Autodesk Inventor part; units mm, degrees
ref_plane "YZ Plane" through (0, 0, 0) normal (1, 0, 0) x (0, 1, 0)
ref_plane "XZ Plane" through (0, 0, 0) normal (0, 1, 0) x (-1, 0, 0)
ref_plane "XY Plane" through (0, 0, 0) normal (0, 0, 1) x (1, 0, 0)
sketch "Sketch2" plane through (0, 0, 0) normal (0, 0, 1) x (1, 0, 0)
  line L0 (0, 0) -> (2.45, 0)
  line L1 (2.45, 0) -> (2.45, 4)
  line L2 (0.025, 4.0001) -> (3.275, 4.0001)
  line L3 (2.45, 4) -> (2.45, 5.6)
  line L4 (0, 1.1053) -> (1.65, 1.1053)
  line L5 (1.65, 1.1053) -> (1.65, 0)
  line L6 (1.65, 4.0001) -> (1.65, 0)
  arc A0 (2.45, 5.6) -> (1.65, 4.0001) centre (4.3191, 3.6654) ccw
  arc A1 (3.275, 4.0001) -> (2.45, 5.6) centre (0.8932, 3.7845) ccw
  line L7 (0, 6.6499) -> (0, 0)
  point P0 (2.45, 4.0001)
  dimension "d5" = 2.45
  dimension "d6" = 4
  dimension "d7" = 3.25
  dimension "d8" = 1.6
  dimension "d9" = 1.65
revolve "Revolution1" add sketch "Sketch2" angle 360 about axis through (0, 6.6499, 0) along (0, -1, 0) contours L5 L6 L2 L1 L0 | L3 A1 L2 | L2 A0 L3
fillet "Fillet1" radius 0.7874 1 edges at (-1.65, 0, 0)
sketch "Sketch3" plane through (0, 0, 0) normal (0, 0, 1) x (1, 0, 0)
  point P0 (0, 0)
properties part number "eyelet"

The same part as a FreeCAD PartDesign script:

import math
import FreeCAD as App
import Part
import Sketcher
from FreeCAD import Vector


def edges_at(feature, points):
    """Names of the edges that pass closest to the given points."""
    edges = feature.Shape.Edges
    near = lambda p: min(range(len(edges)), key=lambda i: edges[i].distToShape(Part.Vertex(*p))[0])
    return sorted({f"Edge{near(p) + 1}" for p in points})

doc = App.newDocument("Part")
body = doc.addObject("PartDesign::Body", "Body")

sketch1 = body.newObject("Sketcher::SketchObject", "Sketch")
sketch1.AttachmentSupport = (doc.getObject("XY_Plane"), [""])
sketch1.MapMode = "FlatFace"
sketch1.addGeometry(Part.LineSegment(Vector(1.6, 0, 0), Vector(2.5, 0, 0)), False)
sketch1.addGeometry(Part.LineSegment(Vector(2.5, 0, 0), Vector(2.5, 4, 0)), False)
sketch1.addGeometry(Part.LineSegment(Vector(2.5, 4, 0), Vector(3.3, 4, 0)), False)
sketch1.addGeometry(Part.ArcOfCircle(Part.Circle(Vector(0.9, 3.8, 0), Vector(0, 0, 1), 2.4), math.radians(5), math.radians(49)), False)
sketch1.addGeometry(Part.ArcOfCircle(Part.Circle(Vector(4.3, 3.7, 0), Vector(0, 0, 1), 2.7), math.radians(134), math.radians(173)), False)
sketch1.addGeometry(Part.LineSegment(Vector(1.6, 4, 0), Vector(1.6, 0, 0)), False)
sketch1.addConstraint(Sketcher.Constraint("Coincident", 0, 2, 1, 1))
sketch1.addConstraint(Sketcher.Constraint("Coincident", 1, 2, 2, 1))
sketch1.addConstraint(Sketcher.Constraint("Coincident", 2, 2, 3, 1))
sketch1.addConstraint(Sketcher.Constraint("Coincident", 3, 2, 4, 1))
sketch1.addConstraint(Sketcher.Constraint("Coincident", 4, 2, 5, 1))
sketch1.addConstraint(Sketcher.Constraint("Coincident", 5, 2, 0, 1))
sketch1.addConstraint(Sketcher.Constraint("Horizontal", 0))
sketch1.addConstraint(Sketcher.Constraint("Vertical", 1))
sketch1.addConstraint(Sketcher.Constraint("Horizontal", 2))
sketch1.addConstraint(Sketcher.Constraint("Vertical", 5))
sketch1.addConstraint(Sketcher.Constraint("PointOnObject", 0, 2, -1))
sketch1.addConstraint(Sketcher.Constraint("Horizontal", 2, 2, 4, 2))
sketch1.addConstraint(Sketcher.Constraint("Vertical", 1, 2, 3, 2))
sketch1.addConstraint(Sketcher.Constraint("DistanceY", 1, 1, 1, 2, 4.0))
sketch1.addConstraint(Sketcher.Constraint("DistanceY", 1, 2, 3, 2, 1.6))
sketch1.addConstraint(Sketcher.Constraint("DistanceX", -1, 1, 0, 2, 2.45))
sketch1.addConstraint(Sketcher.Constraint("DistanceX", -1, 1, 4, 2, 1.65))
sketch1.addConstraint(Sketcher.Constraint("Radius", 4, 2.69))
sketch1.addConstraint(Sketcher.Constraint("Radius", 3, 2.3915))
sketch1.addConstraint(Sketcher.Constraint("DistanceX", 2, 1, 2, 2, 0.825))
revolution = body.newObject("PartDesign::Revolution", "Revolution")
revolution.Profile = sketch1
revolution.ReferenceAxis = (sketch1, ["V_Axis"])
revolution.Angle = 360
doc.recompute()

fillet = body.newObject("PartDesign::Fillet", "Fillet")
fillet.Base = (revolution, edges_at(revolution, [(-1.65, 0, 0)]))
fillet.Radius = 0.7874

doc.recompute()
